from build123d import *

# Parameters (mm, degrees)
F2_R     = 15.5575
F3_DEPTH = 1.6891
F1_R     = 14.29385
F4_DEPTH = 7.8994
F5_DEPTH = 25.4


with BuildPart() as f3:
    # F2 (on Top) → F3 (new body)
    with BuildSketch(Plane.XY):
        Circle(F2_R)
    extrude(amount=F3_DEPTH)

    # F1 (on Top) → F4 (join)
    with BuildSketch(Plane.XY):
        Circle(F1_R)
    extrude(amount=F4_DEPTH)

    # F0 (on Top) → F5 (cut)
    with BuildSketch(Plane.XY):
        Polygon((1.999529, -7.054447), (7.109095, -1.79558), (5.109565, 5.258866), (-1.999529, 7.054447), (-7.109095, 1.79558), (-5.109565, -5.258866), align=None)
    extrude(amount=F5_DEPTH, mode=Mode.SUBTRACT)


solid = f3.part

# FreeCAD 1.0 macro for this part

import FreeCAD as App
import Part
import Sketcher
Q = App.Units.Quantity


def add_polygon(sketch, points):
    """Adds a closed chain of lines whose ends are joined by coincident constraints."""
    first, n = sketch.GeometryCount, len(points)
    for a, b in zip(points, points[1:] + points[:1]):
        sketch.addGeometry(Part.LineSegment(App.Vector(*a, 0), App.Vector(*b, 0)), False)
    for i in range(n):
        sketch.addConstraint(Sketcher.Constraint("Coincident", first + i, 2, first + (i + 1) % n, 1))

doc = App.newDocument("Part")
body = doc.addObject("PartDesign::Body", "Body")

# Sketch on XY plane
sketch1 = doc.addObject("Sketcher::SketchObject", "Sketch")
body.addObject(sketch1)
sketch1.AttachmentSupport = (doc.XY_Plane, [""])
sketch1.MapMode = "FlatFace"
sketch1.addGeometry(Part.Circle(App.Vector(0, 0, 0), App.Vector(0, 0, 1), 16), False)
sketch1.addConstraint(Sketcher.Constraint("Coincident", 0, 3, -1, 1))
sketch1.addConstraint(Sketcher.Constraint("Diameter", 0, Q("1.225 in")))
pad1 = doc.addObject("PartDesign::Pad", "Pad")
body.addObject(pad1)
pad1.Profile = sketch1
pad1.Length = Q("0.0665 in")

# Sketch on XY plane
sketch2 = doc.addObject("Sketcher::SketchObject", "Sketch001")
body.addObject(sketch2)
sketch2.AttachmentSupport = (doc.XY_Plane, [""])
sketch2.MapMode = "FlatFace"
sketch2.addGeometry(Part.Circle(App.Vector(0, 0, 0), App.Vector(0, 0, 1), 14), False)
sketch2.addConstraint(Sketcher.Constraint("Coincident", 0, 3, -1, 1))
sketch2.addConstraint(Sketcher.Constraint("Diameter", 0, Q("1.1255 in")))
pad2 = doc.addObject("PartDesign::Pad", "Pad001")
body.addObject(pad2)
pad2.Profile = sketch2
pad2.Length = Q("0.311 in")

# Sketch on XY plane
sketch3 = doc.addObject("Sketcher::SketchObject", "Sketch002")
body.addObject(sketch3)
sketch3.AttachmentSupport = (doc.XY_Plane, [""])
sketch3.MapMode = "FlatFace"
add_polygon(sketch3, [(2, -7), (7, -2), (5, 5), (-2, 7), (-7, 2), (-5, -5)])  # lines 0-5
sketch3.addConstraint(Sketcher.Constraint("Symmetric", 0, 2, 3, 2, -1, 1))
sketch3.addConstraint(Sketcher.Constraint("Symmetric", 1, 2, 4, 2, -1, 1))
sketch3.addConstraint(Sketcher.Constraint("Symmetric", 2, 2, 5, 2, -1, 1))
sketch3.addConstraint(Sketcher.Constraint("Equal", 0, 1))
sketch3.addConstraint(Sketcher.Constraint("Equal", 1, 2))
sketch3.addConstraint(Sketcher.Constraint("Distance", 0, 7.332349))
sketch3.addConstraint(Sketcher.Constraint("DistanceY", 0, 2, -1, 1, 1.79558))
sketch3.addConstraint(Sketcher.Constraint("DistanceX", 2, 2, -1, 1, 1.999529))
sketch3.addConstraint(Sketcher.Constraint("DistanceX", 1, 2, 0, 2, 1.99953))
pocket1 = doc.addObject("PartDesign::Pocket", "Pocket")
body.addObject(pocket1)
pocket1.Profile = sketch3
pocket1.Length = Q("1 in")
pocket1.Reversed = True

doc.recompute()
